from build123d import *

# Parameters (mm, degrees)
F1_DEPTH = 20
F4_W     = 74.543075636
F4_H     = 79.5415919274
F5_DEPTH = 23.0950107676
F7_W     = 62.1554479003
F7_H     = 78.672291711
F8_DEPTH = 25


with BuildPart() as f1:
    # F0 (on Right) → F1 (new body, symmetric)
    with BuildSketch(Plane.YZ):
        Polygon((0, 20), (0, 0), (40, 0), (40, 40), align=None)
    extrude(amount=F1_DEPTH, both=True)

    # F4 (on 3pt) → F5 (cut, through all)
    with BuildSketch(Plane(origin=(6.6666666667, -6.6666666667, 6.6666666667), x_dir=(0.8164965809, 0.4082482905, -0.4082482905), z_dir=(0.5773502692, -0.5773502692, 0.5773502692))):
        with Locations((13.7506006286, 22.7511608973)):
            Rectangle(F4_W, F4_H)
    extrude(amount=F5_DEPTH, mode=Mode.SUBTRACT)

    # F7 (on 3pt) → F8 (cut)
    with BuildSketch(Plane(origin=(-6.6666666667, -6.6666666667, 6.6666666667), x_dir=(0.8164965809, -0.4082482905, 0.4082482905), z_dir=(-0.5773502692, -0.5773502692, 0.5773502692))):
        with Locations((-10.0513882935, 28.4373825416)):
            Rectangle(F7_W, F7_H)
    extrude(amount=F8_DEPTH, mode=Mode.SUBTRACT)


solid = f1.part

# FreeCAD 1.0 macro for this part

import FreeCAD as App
import Part
import Sketcher
Q = App.Units.Quantity

doc = App.newDocument("Part")
body = doc.addObject("PartDesign::Body", "Body")

# Sketch on YZ plane
sketch1 = body.newObject("Sketcher::SketchObject", "Sketch")
sketch1.AttachmentSupport = (doc.getObject("YZ_Plane"), [""])
sketch1.MapMode = "FlatFace"
sketch1.addGeometry([
    Part.LineSegment(App.Vector(0, 20, 0), App.Vector(0, 0, 0)),
    Part.LineSegment(App.Vector(0, 0, 0), App.Vector(40, 0, 0)),
    Part.LineSegment(App.Vector(40, 0, 0), App.Vector(40, 40, 0)),
    Part.LineSegment(App.Vector(40, 40, 0), App.Vector(0, 20, 0)),
], False)
sketch1.addConstraint([
    Sketcher.Constraint("Coincident", 0, 2, 1, 1),
    Sketcher.Constraint("Coincident", 1, 2, 2, 1),
    Sketcher.Constraint("Coincident", 2, 2, 3, 1),
    Sketcher.Constraint("Coincident", 3, 2, 0, 1),
    Sketcher.Constraint("Vertical", 0),
    Sketcher.Constraint("Horizontal", 1),
    Sketcher.Constraint("Vertical", 2),
    Sketcher.Constraint("Coincident", 0, 2, -1, 1),
    Sketcher.Constraint("Equal", 1, 2),
    Sketcher.Constraint("DistanceX", 1, 1, 1, 2, Q("40 mm")),
    Sketcher.Constraint("DistanceY", 0, 2, 0, 1, Q("20 mm")),
])
pad1 = body.newObject("PartDesign::Pad", "Pad")
pad1.Profile = sketch1
pad1.Length = 40
pad1.Midplane = True

# Sketch on an angled plane
sketch2 = body.newObject("Sketcher::SketchObject", "Sketch001")
sketch2.Placement = App.Placement(App.Vector(6.666667, -6.666667, 6.666667), App.Rotation(App.Vector(0.816496581, 0.40824829, -0.40824829), App.Vector(0, 0.707106781, 0.707106781), App.Vector(0.577350269, -0.577350269, 0.577350269), "ZXY"))
sketch2.addGeometry([
    Part.LineSegment(App.Vector(-24, 63, 0), App.Vector(-24, -17, 0)),
    Part.LineSegment(App.Vector(-24, -17, 0), App.Vector(51, -17, 0)),
    Part.LineSegment(App.Vector(51, -17, 0), App.Vector(51, 63, 0)),
    Part.LineSegment(App.Vector(51, 63, 0), App.Vector(-24, 63, 0)),
], False)
sketch2.addConstraint([
    Sketcher.Constraint("Coincident", 0, 2, 1, 1),
    Sketcher.Constraint("Coincident", 1, 2, 2, 1),
    Sketcher.Constraint("Coincident", 2, 2, 3, 1),
    Sketcher.Constraint("Coincident", 3, 2, 0, 1),
    Sketcher.Constraint("Vertical", 0),
    Sketcher.Constraint("Horizontal", 1),
    Sketcher.Constraint("Vertical", 2),
    Sketcher.Constraint("Horizontal", 3),
    Sketcher.Constraint("DistanceY", 0, 2, 0, 1, Q("79.541592 mm")),
    Sketcher.Constraint("DistanceX", 1, 1, 1, 2, Q("74.543076 mm")),
    Sketcher.Constraint("DistanceX", -1, 1, 1, 2, Q("51.022138 mm")),
    Sketcher.Constraint("DistanceY", 0, 2, -1, 1, Q("17.019635 mm")),
])
pocket1 = body.newObject("PartDesign::Pocket", "Pocket")
pocket1.Profile = sketch2
pocket1.Type = "ThroughAll"
pocket1.Reversed = True

# Sketch on an angled plane
sketch3 = body.newObject("Sketcher::SketchObject", "Sketch002")
sketch3.Placement = App.Placement(App.Vector(-6.666667, -6.666667, 6.666667), App.Rotation(App.Vector(0.816496581, -0.40824829, 0.40824829), App.Vector(0, 0.707106781, 0.707106781), App.Vector(-0.577350269, -0.577350269, 0.577350269), "ZXY"))
sketch3.addGeometry([
    Part.LineSegment(App.Vector(-41, 68, 0), App.Vector(-41, -11, 0)),
    Part.LineSegment(App.Vector(-41, -11, 0), App.Vector(21, -11, 0)),
    Part.LineSegment(App.Vector(21, -11, 0), App.Vector(21, 68, 0)),
    Part.LineSegment(App.Vector(21, 68, 0), App.Vector(-41, 68, 0)),
], False)
sketch3.addConstraint([
    Sketcher.Constraint("Coincident", 0, 2, 1, 1),
    Sketcher.Constraint("Coincident", 1, 2, 2, 1),
    Sketcher.Constraint("Coincident", 2, 2, 3, 1),
    Sketcher.Constraint("Coincident", 3, 2, 0, 1),
    Sketcher.Constraint("Vertical", 0),
    Sketcher.Constraint("Horizontal", 1),
    Sketcher.Constraint("Vertical", 2),
    Sketcher.Constraint("Horizontal", 3),
    Sketcher.Constraint("DistanceY", 0, 2, 0, 1, Q("78.672292 mm")),
    Sketcher.Constraint("DistanceX", 1, 1, 1, 2, Q("62.155448 mm")),
    Sketcher.Constraint("DistanceY", -1, 1, 2, 2, Q("67.773528 mm")),
    Sketcher.Constraint("DistanceX", 0, 2, -1, 1, Q("41.129112 mm")),
])
pocket2 = body.newObject("PartDesign::Pocket", "Pocket001")
pocket2.Profile = sketch3
pocket2.Length = 25
pocket2.Reversed = True

doc.recompute()
